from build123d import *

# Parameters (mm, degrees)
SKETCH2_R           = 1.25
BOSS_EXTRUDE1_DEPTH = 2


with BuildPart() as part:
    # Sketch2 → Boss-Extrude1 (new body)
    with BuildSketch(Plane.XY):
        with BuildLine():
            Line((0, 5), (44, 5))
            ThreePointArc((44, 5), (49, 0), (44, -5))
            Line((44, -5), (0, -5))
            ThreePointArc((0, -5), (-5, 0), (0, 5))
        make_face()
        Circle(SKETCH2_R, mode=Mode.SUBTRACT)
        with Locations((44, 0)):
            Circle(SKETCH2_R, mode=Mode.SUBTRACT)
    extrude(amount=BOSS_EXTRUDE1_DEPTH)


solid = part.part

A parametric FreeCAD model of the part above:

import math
import FreeCAD as App
import Part
import Sketcher

doc = App.newDocument("Part")
body = doc.addObject("PartDesign::Body", "Body")

# Sketch on XY plane
sketch1 = body.newObject("Sketcher::SketchObject", "Sketch")
sketch1.AttachmentSupport = (doc.getObject("XY_Plane"), [""])
sketch1.MapMode = "FlatFace"
sketch1.addGeometry([
    Part.LineSegment(App.Vector(44, 5, 0), App.Vector(0, 5, 0)),  # 0
    Part.ArcOfCircle(Part.Circle(App.Vector(0, 0, 0), App.Vector(0, 0, 1), 5), math.radians(90), math.radians(270)),  # 1
    Part.LineSegment(App.Vector(0, -5, 0), App.Vector(44, -5, 0)),  # 2
    Part.ArcOfCircle(Part.Circle(App.Vector(44, 0, 0), App.Vector(0, 0, 1), 5), math.radians(-90), math.radians(90)),  # 3
    Part.Circle(App.Vector(44, 0, 0), App.Vector(0, 0, 1), 1.2),  # 4
    Part.Circle(App.Vector(0, 0, 0), App.Vector(0, 0, 1), 1.2),  # 5
], False)
sketch1.addConstraint([
    Sketcher.Constraint("Tangent", 0, 2, 1, 1),
    Sketcher.Constraint("Tangent", 1, 2, 2, 1),
    Sketcher.Constraint("Tangent", 2, 2, 3, 1),
    Sketcher.Constraint("Tangent", 3, 2, 0, 1),
    Sketcher.Constraint("Horizontal", 0),
    Sketcher.Constraint("Horizontal", 2),
    Sketcher.Constraint("Coincident", 1, 3, -1, 1),
    Sketcher.Constraint("Coincident", 5, 3, -1, 1),
    Sketcher.Constraint("Coincident", 4, 3, 3, 3),
    Sketcher.Constraint("Equal", 4, 5),
    Sketcher.Constraint("Radius", 1, 5.0),
    Sketcher.Constraint("Diameter", 4, 2.5),
    Sketcher.Constraint("DistanceX", 0, 2, 0, 1, 44.0),
])
pad1 = body.newObject("PartDesign::Pad", "Pad")
pad1.Profile = sketch1
pad1.Length = 2

doc.recompute()
